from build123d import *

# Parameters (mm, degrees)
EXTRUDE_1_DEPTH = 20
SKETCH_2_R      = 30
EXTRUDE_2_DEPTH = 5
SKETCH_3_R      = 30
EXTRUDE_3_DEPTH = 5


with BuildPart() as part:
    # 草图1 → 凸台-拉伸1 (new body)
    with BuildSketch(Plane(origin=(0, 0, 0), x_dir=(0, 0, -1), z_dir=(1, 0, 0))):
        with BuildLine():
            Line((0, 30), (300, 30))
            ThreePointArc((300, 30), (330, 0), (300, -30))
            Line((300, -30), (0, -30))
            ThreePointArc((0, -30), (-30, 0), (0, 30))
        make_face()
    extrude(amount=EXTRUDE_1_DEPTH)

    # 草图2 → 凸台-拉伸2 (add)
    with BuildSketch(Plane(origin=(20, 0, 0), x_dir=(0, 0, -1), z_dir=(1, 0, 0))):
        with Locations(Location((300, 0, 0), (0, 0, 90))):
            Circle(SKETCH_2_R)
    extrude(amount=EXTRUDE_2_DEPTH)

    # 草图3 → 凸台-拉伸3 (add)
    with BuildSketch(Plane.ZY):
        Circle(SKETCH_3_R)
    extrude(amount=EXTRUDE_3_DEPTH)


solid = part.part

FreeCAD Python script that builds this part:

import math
import FreeCAD as App
import Part
import Sketcher
Q = App.Units.Quantity

doc = App.newDocument("Part")
body = doc.addObject("PartDesign::Body", "Body")

# Sketch on YZ plane
sketch1 = doc.addObject("Sketcher::SketchObject", "Sketch")
body.addObject(sketch1)
sketch1.AttachmentSupport = (doc.YZ_Plane, [""])
sketch1.MapMode = "FlatFace"
sketch1.addGeometry([
    Part.LineSegment(App.Vector(30, -300, 0), App.Vector(30, 0, 0)),
    Part.ArcOfCircle(Part.Circle(App.Vector(0, 0, 0), App.Vector(0, 0, 1), 30), math.radians(0), math.radians(180)),
    Part.LineSegment(App.Vector(-30, 0, 0), App.Vector(-30, -300, 0)),
    Part.ArcOfCircle(Part.Circle(App.Vector(0, -300, 0), App.Vector(0, 0, 1), 30), math.radians(180), math.radians(360)),
], False)
sketch1.addConstraint([
    Sketcher.Constraint("Tangent", 0, 2, 1, 1),
    Sketcher.Constraint("Tangent", 1, 2, 2, 1),
    Sketcher.Constraint("Tangent", 2, 2, 3, 1),
    Sketcher.Constraint("Tangent", 3, 2, 0, 1),
    Sketcher.Constraint("Vertical", 0),
    Sketcher.Constraint("Vertical", 2),
    Sketcher.Constraint("Coincident", 1, 3, -1, 1),
    Sketcher.Constraint("Radius", 1, Q("30 mm")),
    Sketcher.Constraint("DistanceY", 0, 1, 0, 2, Q("300 mm")),
])
pad1 = doc.addObject("PartDesign::Pad", "Pad")
body.addObject(pad1)
pad1.Profile = sketch1
pad1.Length = 20

# Sketch on YZ plane
sketch2 = doc.addObject("Sketcher::SketchObject", "Sketch001")
body.addObject(sketch2)
sketch2.AttachmentSupport = (doc.YZ_Plane, [""])
sketch2.MapMode = "FlatFace"
sketch2.AttachmentOffset = App.Placement(App.Vector(0, 0, 20), App.Rotation())
sketch2.addGeometry(Part.Circle(App.Vector(0, -300, 0), App.Vector(0, 0, 1), 30), False)
sketch2.addConstraint([
    Sketcher.Constraint("PointOnObject", 0, 3, -2),
    Sketcher.Constraint("Diameter", 0, Q("60 mm")),
    Sketcher.Constraint("DistanceY", 0, 3, -1, 1, Q("300 mm")),
])
pad2 = doc.addObject("PartDesign::Pad", "Pad001")
body.addObject(pad2)
pad2.Profile = sketch2
pad2.Length = 5

# Sketch on YZ plane
sketch3 = doc.addObject("Sketcher::SketchObject", "Sketch002")
body.addObject(sketch3)
sketch3.AttachmentSupport = (doc.YZ_Plane, [""])
sketch3.MapMode = "FlatFace"
sketch3.addGeometry(Part.Circle(App.Vector(0, 0, 0), App.Vector(0, 0, 1), 30), False)
sketch3.addConstraint([
    Sketcher.Constraint("Coincident", 0, 3, -1, 1),
    Sketcher.Constraint("Diameter", 0, Q("60 mm")),
])
pad3 = doc.addObject("PartDesign::Pad", "Pad002")
body.addObject(pad3)
pad3.Profile = sketch3
pad3.Length = 5
pad3.Reversed = True

doc.recompute()
